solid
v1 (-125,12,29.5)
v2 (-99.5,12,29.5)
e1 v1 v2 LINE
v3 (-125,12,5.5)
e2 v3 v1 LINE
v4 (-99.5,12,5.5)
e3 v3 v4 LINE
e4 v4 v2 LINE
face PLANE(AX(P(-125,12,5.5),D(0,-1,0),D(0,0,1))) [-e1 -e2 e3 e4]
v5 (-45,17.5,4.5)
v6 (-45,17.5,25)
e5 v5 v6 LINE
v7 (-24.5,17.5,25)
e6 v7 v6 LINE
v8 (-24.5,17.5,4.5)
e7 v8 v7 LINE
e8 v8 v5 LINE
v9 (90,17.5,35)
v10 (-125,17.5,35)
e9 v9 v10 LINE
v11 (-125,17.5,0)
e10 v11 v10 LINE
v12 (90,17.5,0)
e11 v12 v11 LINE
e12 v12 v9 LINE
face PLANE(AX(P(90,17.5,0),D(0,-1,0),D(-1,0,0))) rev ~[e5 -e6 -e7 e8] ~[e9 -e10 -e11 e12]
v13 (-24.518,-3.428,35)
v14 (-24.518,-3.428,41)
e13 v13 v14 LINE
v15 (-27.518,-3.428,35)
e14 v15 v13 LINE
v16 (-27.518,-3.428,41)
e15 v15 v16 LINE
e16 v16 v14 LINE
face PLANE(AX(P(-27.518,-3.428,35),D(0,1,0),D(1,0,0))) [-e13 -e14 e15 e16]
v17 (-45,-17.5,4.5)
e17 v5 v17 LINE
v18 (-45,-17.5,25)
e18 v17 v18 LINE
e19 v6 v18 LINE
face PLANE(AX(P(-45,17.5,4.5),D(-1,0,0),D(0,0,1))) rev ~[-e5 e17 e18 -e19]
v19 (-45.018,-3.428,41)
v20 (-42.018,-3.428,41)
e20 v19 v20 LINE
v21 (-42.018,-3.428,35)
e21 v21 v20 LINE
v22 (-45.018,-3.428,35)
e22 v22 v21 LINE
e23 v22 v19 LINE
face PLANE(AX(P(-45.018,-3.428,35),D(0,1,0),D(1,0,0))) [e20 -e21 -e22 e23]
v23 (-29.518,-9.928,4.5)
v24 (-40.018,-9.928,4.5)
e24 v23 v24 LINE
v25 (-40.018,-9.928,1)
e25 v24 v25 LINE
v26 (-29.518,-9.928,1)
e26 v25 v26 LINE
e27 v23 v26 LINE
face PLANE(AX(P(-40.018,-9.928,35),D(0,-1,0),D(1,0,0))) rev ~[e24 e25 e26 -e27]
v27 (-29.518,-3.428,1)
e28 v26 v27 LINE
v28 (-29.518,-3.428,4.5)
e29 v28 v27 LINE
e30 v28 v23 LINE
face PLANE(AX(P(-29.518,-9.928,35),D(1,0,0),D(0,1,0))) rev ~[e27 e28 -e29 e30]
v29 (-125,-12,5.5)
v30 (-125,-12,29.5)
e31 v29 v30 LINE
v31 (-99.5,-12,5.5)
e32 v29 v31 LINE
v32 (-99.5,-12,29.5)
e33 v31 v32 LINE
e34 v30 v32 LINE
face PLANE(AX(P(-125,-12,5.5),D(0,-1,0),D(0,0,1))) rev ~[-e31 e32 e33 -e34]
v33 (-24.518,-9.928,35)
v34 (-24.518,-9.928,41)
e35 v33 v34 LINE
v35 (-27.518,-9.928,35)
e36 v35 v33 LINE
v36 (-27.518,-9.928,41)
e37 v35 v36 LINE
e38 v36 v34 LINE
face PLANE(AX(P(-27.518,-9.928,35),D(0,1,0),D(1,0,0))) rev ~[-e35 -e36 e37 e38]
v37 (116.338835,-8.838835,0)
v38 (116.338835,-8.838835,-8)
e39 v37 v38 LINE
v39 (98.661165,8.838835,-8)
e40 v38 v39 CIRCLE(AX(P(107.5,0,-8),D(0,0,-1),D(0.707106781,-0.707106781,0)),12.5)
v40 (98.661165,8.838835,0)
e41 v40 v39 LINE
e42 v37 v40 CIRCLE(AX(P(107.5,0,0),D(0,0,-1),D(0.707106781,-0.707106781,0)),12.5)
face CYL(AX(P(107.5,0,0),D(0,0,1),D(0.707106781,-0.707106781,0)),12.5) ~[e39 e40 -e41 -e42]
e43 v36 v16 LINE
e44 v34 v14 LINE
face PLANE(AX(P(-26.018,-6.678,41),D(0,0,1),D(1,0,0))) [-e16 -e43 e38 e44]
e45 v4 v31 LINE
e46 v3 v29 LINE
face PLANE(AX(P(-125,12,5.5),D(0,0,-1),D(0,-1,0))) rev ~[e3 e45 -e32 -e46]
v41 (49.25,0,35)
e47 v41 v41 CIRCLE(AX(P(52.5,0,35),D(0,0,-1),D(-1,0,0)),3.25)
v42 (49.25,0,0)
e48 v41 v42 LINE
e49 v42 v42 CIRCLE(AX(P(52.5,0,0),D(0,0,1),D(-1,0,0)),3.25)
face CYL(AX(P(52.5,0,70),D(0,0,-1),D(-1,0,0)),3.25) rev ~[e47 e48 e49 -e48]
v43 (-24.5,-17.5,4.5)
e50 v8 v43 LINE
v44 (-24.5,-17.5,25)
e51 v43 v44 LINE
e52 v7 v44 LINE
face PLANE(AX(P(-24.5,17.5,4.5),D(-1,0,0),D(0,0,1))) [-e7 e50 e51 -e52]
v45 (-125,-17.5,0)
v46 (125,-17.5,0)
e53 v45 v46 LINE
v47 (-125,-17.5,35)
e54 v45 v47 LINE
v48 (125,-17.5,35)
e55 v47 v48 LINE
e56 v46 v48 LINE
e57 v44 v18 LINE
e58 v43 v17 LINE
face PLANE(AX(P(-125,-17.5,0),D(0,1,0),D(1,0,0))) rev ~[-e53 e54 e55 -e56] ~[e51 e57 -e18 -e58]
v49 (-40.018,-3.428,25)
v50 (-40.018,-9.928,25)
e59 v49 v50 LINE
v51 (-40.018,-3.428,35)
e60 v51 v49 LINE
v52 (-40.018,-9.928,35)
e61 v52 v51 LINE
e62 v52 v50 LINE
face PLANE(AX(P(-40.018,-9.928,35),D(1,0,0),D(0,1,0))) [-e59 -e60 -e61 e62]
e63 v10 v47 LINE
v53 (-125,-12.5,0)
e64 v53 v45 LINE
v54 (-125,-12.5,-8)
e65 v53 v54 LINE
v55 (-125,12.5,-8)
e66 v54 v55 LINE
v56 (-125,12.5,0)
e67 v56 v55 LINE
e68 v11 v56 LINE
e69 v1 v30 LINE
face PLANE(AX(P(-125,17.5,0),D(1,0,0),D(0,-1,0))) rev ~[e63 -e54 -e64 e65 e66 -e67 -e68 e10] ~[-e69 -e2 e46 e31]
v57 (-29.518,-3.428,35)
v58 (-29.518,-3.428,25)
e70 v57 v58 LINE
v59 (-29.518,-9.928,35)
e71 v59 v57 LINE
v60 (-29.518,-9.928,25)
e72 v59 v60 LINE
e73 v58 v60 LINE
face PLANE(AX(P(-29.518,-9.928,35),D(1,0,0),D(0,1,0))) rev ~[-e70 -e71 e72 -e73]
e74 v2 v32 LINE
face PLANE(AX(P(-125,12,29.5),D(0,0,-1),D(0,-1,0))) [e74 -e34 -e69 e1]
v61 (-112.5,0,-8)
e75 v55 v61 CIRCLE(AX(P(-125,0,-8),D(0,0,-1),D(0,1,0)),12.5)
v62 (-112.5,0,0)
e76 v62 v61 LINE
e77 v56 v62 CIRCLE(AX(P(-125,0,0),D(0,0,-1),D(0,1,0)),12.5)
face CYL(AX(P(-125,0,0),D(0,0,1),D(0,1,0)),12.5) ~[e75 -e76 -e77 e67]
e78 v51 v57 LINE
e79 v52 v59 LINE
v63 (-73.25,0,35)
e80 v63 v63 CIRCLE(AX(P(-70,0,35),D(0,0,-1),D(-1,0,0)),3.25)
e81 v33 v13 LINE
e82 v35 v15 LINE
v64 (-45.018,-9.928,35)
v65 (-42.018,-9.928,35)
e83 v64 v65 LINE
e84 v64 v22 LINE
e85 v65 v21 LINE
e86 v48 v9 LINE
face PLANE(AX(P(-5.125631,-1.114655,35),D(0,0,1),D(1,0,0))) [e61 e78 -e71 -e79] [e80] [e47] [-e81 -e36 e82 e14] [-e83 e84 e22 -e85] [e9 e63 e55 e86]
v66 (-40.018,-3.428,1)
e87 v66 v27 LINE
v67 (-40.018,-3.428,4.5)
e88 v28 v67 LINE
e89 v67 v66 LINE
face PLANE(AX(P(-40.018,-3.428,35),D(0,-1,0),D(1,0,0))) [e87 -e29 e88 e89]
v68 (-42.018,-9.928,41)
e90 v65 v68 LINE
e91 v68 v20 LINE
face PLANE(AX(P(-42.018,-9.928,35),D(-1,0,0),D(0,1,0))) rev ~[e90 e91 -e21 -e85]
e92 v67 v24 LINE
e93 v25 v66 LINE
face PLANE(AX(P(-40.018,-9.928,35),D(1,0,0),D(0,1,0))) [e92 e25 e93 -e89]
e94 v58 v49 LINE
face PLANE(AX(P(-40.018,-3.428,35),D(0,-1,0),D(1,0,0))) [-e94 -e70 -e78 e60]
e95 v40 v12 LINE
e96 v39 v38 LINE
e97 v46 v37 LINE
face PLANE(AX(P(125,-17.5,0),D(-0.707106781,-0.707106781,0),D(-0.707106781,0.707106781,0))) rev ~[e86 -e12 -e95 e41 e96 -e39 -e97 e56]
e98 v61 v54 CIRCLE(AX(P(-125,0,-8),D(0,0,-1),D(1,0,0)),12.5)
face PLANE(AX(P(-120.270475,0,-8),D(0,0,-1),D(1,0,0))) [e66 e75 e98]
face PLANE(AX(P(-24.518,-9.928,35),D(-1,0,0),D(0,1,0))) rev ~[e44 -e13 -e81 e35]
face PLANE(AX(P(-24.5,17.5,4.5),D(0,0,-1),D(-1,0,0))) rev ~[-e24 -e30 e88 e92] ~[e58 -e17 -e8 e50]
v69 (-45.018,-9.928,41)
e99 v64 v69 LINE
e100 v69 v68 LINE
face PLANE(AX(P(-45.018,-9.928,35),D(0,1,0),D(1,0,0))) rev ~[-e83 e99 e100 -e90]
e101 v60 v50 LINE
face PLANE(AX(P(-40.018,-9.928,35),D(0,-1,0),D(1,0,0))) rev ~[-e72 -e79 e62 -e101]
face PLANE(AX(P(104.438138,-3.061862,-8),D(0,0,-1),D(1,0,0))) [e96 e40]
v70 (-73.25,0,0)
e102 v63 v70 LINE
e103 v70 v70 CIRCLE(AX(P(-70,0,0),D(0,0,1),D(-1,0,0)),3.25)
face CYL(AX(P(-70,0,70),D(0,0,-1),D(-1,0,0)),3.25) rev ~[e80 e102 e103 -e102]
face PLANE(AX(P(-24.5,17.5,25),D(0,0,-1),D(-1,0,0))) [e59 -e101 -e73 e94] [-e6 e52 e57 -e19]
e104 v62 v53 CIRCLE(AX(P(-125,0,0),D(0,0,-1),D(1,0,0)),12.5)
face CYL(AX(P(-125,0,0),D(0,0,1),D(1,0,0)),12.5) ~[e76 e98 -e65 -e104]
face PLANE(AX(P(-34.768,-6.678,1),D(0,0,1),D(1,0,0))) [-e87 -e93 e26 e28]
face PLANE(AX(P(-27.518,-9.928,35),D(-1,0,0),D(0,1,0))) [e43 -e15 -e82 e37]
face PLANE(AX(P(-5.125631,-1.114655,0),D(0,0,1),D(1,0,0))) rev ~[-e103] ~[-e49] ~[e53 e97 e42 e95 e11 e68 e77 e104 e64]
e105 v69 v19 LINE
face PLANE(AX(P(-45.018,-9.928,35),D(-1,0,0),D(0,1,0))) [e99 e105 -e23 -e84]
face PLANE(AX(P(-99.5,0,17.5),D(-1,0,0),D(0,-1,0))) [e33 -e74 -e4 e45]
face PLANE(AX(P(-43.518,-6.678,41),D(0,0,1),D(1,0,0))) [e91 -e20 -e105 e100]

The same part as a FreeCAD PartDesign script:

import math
import FreeCAD as App
import Part
import Sketcher

V = App.Vector
Q = App.Units.Quantity


def add_polygon(sketch, points):
    """Adds a closed chain of lines whose ends are joined by coincident constraints."""
    first, n = sketch.GeometryCount, len(points)
    for a, b in zip(points, points[1:] + points[:1]):
        sketch.addGeometry(Part.LineSegment(App.Vector(*a, 0), App.Vector(*b, 0)), False)
    for i in range(n):
        sketch.addConstraint(Sketcher.Constraint("Coincident", first + i, 2, first + (i + 1) % n, 1))

doc = App.newDocument("Part")
body = doc.addObject("PartDesign::Body", "Body")

# Sketch on XY plane
sketch1 = body.newObject("Sketcher::SketchObject", "Sketch")
sketch1.AttachmentSupport = (doc.getObject("XY_Plane"), [""])
sketch1.MapMode = "FlatFace"
add_polygon(sketch1, [(-125, -17.5), (125, -17.5), (90, 17.5), (-125, 17.5)])  # lines 0-3
sketch1.addConstraint([
    Sketcher.Constraint("Horizontal", 0),
    Sketcher.Constraint("Horizontal", 2),
    Sketcher.Constraint("Vertical", 3),
    Sketcher.Constraint("Symmetric", 0, 2, 2, 2, -1, 1),
    Sketcher.Constraint("DistanceX", 0, 1, 0, 2, Q("250 mm")),
    Sketcher.Constraint("DistanceX", 2, 2, 2, 1, Q("215 mm")),
    Sketcher.Constraint("DistanceY", 3, 2, 3, 1, Q("35 mm")),
])
pad1 = body.newObject("PartDesign::Pad", "Pad")
pad1.Profile = sketch1
pad1.Length = 35

# Sketch on YZ plane
sketch2 = body.newObject("Sketcher::SketchObject", "Sketch001")
sketch2.AttachmentSupport = (doc.getObject("YZ_Plane"), [""])
sketch2.MapMode = "FlatFace"
sketch2.AttachmentOffset = App.Placement(V(0, 0, -125), App.Rotation())
add_polygon(sketch2, [(12, 29.5), (12, 5.5), (-12, 5.5), (-12, 29.5)])  # lines 0-3
sketch2.addConstraint([
    Sketcher.Constraint("Vertical", 0),
    Sketcher.Constraint("Horizontal", 1),
    Sketcher.Constraint("Vertical", 2),
    Sketcher.Constraint("Horizontal", 3),
    Sketcher.Constraint("Equal", 3, 0),
    Sketcher.Constraint("DistanceX", 1, 2, 1, 1, Q("24 mm")),
    Sketcher.Constraint("DistanceX", -1, 1, 0, 2, Q("12 mm")),
    Sketcher.Constraint("DistanceY", -1, 1, 0, 2, Q("5.5 mm")),
])
pocket1 = body.newObject("PartDesign::Pocket", "Pocket")
pocket1.Profile = sketch2
pocket1.Length = 25.5
pocket1.Reversed = True

# Sketch on XY plane
sketch3 = body.newObject("Sketcher::SketchObject", "Sketch002")
sketch3.AttachmentSupport = (doc.getObject("XY_Plane"), [""])
sketch3.MapMode = "FlatFace"
sketch3.AttachmentOffset = App.Placement(V(0, 0, 35), App.Rotation())
sketch3.addGeometry([
    Part.Circle(V(52.5, 0, 0), V(0, 0, 1), 3.25),
    Part.Circle(V(-70, 0, 0), V(0, 0, 1), 3.25),
], False)
sketch3.addConstraint([
    Sketcher.Constraint("Equal", 0, 1),
    Sketcher.Constraint("PointOnObject", 0, 3, -1),
    Sketcher.Constraint("PointOnObject", 1, 3, -1),
    Sketcher.Constraint("Diameter", 0, Q("6.5 mm")),
    Sketcher.Constraint("DistanceX", 1, 3, -1, 1, Q("70 mm")),
    Sketcher.Constraint("DistanceX", -1, 1, 0, 3, Q("52.5 mm")),
])
doc.recompute()
hole = body.newObject("PartDesign::Hole", "Hole")
hole.Profile = sketch3
hole.ThreadType = "None"
hole.Diameter = 6.5
hole.DepthType = "Dimension"
hole.Depth = 35
hole.DrillPoint = "Angled"
hole.DrillPointAngle = 118

# Sketch on XY plane
sketch4 = body.newObject("Sketcher::SketchObject", "Sketch003")
sketch4.AttachmentSupport = (doc.getObject("XY_Plane"), [""])
sketch4.MapMode = "FlatFace"
sketch4.addGeometry([
    Part.LineSegment(V(98.661165, 8.838835, 0), V(116.338835, -8.838835, 0)),
    Part.ArcOfCircle(Part.Circle(V(107.5, 0, 0), V(0, 0, 1), 12.5), math.radians(135), math.radians(315)),
], False)
sketch4.addConstraint([
    Sketcher.Constraint("Coincident", 0, 1, 1, 1),
    Sketcher.Constraint("Coincident", 1, 2, 0, 2),
    Sketcher.Constraint("PointOnObject", 1, 3, -1),
    Sketcher.Constraint("Radius", 1, Q("12.5 mm")),
    Sketcher.Constraint("Angle", 0, Q("-45 deg")),
    Sketcher.Constraint("DistanceX", -1, 1, 1, 3, Q("107.5 mm")),
    Sketcher.Constraint("DistanceX", -1, 1, 0, 1, Q("98.661165 mm")),
])
pad2 = body.newObject("PartDesign::Pad", "Pad001")
pad2.Profile = sketch4
pad2.Length = 8
pad2.Reversed = True

# Sketch on XY plane
sketch5 = body.newObject("Sketcher::SketchObject", "Sketch004")
sketch5.AttachmentSupport = (doc.getObject("XY_Plane"), [""])
sketch5.MapMode = "FlatFace"
sketch5.addGeometry([
    Part.ArcOfCircle(Part.Circle(V(-125, 0, 0), V(0, 0, 1), 12.5), math.radians(0), math.radians(90)),
    Part.ArcOfCircle(Part.Circle(V(-125, 0, 0), V(0, 0, 1), 12.5), math.radians(-90), math.radians(0)),
    Part.LineSegment(V(-125, -12.5, 0), V(-125, 12.5, 0)),
], False)
sketch5.addConstraint([
    Sketcher.Constraint("Tangent", 0, 1, 1, 2),
    Sketcher.Constraint("Coincident", 1, 1, 2, 1),
    Sketcher.Constraint("Coincident", 2, 2, 0, 2),
    Sketcher.Constraint("Vertical", 2),
    Sketcher.Constraint("Equal", 0, 1),
    Sketcher.Constraint("PointOnObject", 0, 3, -1),
    Sketcher.Constraint("PointOnObject", 0, 1, -1),
    Sketcher.Constraint("Vertical", 0, 3, 1, 1),
    Sketcher.Constraint("Radius", 0, Q("12.5 mm")),
    Sketcher.Constraint("DistanceX", 0, 3, -1, 1, Q("125 mm")),
])
pad3 = body.newObject("PartDesign::Pad", "Pad002")
pad3.Profile = sketch5
pad3.Length = 8
pad3.Reversed = True

# Sketch on XZ plane
sketch6 = body.newObject("Sketcher::SketchObject", "Sketch005")
sketch6.AttachmentSupport = (doc.getObject("XZ_Plane"), [""])
sketch6.MapMode = "FlatFace"
sketch6.AttachmentOffset = App.Placement(V(0, 0, -17.5), App.Rotation())
add_polygon(sketch6, [(-24.5, 25), (-24.5, 4.5), (-45, 4.5), (-45, 25)])  # lines 0-3
sketch6.addConstraint([
    Sketcher.Constraint("Vertical", 0),
    Sketcher.Constraint("Horizontal", 1),
    Sketcher.Constraint("Vertical", 2),
    Sketcher.Constraint("Horizontal", 3),
    Sketcher.Constraint("Equal", 3, 0),
    Sketcher.Constraint("DistanceX", 1, 2, 1, 1, Q("20.5 mm")),
    Sketcher.Constraint("DistanceX", 1, 2, -1, 1, Q("45 mm")),
    Sketcher.Constraint("DistanceY", -1, 1, 2, 2, Q("25 mm")),
])
pocket2 = body.newObject("PartDesign::Pocket", "Pocket001")
pocket2.Profile = sketch6
pocket2.Length = 100
pocket2.Reversed = True

# Sketch on XY plane
sketch7 = body.newObject("Sketcher::SketchObject", "Sketch006")
sketch7.AttachmentSupport = (doc.getObject("XY_Plane"), [""])
sketch7.MapMode = "FlatFace"
sketch7.AttachmentOffset = App.Placement(V(0, 0, 35), App.Rotation())
add_polygon(sketch7, [(-40.018, -3.428), (-40.018, -9.928), (-29.518, -9.928), (-29.518, -3.428)])  # lines 0-3
sketch7.addConstraint([
    Sketcher.Constraint("Vertical", 0),
    Sketcher.Constraint("Horizontal", 1),
    Sketcher.Constraint("Vertical", 2),
    Sketcher.Constraint("Horizontal", 3),
    Sketcher.Constraint("DistanceX", 1, 1, 1, 2, Q("10.5 mm")),
    Sketcher.Constraint("DistanceY", 0, 2, 0, 1, Q("6.5 mm")),
    Sketcher.Constraint("DistanceX", 0, 2, -1, 1, Q("40.018 mm")),
    Sketcher.Constraint("DistanceY", 0, 2, -1, 1, Q("9.928 mm")),
])
pocket3 = body.newObject("PartDesign::Pocket", "Pocket002")
pocket3.Profile = sketch7
pocket3.Length = 34

# Sketch on XY plane
sketch8 = body.newObject("Sketcher::SketchObject", "Sketch007")
sketch8.AttachmentSupport = (doc.getObject("XY_Plane"), [""])
sketch8.MapMode = "FlatFace"
sketch8.AttachmentOffset = App.Placement(V(0, 0, 35), App.Rotation())
add_polygon(sketch8, [(-27.518, -3.428), (-27.518, -9.928), (-24.518, -9.928), (-24.518, -3.428)])  # lines 0-3
add_polygon(sketch8, [(-45.018, -3.428), (-45.018, -9.928), (-42.018, -9.928), (-42.018, -3.428)])  # lines 4-7
sketch8.addConstraint([
    Sketcher.Constraint("Vertical", 0),
    Sketcher.Constraint("Horizontal", 1),
    Sketcher.Constraint("Vertical", 2),
    Sketcher.Constraint("Horizontal", 3),
    Sketcher.Constraint("Vertical", 4),
    Sketcher.Constraint("Horizontal", 5),
    Sketcher.Constraint("Vertical", 6),
    Sketcher.Constraint("Horizontal", 7),
    Sketcher.Constraint("Horizontal", 1, 2, 4, 2),
    Sketcher.Constraint("Horizontal", 3, 2, 6, 2),
    Sketcher.Constraint("Equal", 3, 5),
    Sketcher.Constraint("DistanceX", 1, 1, 1, 2, Q("3 mm")),
    Sketcher.Constraint("DistanceY", 0, 2, 0, 1, Q("6.5 mm")),
    Sketcher.Constraint("DistanceX", 4, 2, 0, 2, Q("17.5 mm")),
    Sketcher.Constraint("DistanceX", 0, 2, -1, 1, Q("27.518 mm")),
    Sketcher.Constraint("DistanceY", 0, 2, -1, 1, Q("9.928 mm")),
])
pad4 = body.newObject("PartDesign::Pad", "Pad003")
pad4.Profile = sketch8
pad4.Length = 6

doc.recompute()
